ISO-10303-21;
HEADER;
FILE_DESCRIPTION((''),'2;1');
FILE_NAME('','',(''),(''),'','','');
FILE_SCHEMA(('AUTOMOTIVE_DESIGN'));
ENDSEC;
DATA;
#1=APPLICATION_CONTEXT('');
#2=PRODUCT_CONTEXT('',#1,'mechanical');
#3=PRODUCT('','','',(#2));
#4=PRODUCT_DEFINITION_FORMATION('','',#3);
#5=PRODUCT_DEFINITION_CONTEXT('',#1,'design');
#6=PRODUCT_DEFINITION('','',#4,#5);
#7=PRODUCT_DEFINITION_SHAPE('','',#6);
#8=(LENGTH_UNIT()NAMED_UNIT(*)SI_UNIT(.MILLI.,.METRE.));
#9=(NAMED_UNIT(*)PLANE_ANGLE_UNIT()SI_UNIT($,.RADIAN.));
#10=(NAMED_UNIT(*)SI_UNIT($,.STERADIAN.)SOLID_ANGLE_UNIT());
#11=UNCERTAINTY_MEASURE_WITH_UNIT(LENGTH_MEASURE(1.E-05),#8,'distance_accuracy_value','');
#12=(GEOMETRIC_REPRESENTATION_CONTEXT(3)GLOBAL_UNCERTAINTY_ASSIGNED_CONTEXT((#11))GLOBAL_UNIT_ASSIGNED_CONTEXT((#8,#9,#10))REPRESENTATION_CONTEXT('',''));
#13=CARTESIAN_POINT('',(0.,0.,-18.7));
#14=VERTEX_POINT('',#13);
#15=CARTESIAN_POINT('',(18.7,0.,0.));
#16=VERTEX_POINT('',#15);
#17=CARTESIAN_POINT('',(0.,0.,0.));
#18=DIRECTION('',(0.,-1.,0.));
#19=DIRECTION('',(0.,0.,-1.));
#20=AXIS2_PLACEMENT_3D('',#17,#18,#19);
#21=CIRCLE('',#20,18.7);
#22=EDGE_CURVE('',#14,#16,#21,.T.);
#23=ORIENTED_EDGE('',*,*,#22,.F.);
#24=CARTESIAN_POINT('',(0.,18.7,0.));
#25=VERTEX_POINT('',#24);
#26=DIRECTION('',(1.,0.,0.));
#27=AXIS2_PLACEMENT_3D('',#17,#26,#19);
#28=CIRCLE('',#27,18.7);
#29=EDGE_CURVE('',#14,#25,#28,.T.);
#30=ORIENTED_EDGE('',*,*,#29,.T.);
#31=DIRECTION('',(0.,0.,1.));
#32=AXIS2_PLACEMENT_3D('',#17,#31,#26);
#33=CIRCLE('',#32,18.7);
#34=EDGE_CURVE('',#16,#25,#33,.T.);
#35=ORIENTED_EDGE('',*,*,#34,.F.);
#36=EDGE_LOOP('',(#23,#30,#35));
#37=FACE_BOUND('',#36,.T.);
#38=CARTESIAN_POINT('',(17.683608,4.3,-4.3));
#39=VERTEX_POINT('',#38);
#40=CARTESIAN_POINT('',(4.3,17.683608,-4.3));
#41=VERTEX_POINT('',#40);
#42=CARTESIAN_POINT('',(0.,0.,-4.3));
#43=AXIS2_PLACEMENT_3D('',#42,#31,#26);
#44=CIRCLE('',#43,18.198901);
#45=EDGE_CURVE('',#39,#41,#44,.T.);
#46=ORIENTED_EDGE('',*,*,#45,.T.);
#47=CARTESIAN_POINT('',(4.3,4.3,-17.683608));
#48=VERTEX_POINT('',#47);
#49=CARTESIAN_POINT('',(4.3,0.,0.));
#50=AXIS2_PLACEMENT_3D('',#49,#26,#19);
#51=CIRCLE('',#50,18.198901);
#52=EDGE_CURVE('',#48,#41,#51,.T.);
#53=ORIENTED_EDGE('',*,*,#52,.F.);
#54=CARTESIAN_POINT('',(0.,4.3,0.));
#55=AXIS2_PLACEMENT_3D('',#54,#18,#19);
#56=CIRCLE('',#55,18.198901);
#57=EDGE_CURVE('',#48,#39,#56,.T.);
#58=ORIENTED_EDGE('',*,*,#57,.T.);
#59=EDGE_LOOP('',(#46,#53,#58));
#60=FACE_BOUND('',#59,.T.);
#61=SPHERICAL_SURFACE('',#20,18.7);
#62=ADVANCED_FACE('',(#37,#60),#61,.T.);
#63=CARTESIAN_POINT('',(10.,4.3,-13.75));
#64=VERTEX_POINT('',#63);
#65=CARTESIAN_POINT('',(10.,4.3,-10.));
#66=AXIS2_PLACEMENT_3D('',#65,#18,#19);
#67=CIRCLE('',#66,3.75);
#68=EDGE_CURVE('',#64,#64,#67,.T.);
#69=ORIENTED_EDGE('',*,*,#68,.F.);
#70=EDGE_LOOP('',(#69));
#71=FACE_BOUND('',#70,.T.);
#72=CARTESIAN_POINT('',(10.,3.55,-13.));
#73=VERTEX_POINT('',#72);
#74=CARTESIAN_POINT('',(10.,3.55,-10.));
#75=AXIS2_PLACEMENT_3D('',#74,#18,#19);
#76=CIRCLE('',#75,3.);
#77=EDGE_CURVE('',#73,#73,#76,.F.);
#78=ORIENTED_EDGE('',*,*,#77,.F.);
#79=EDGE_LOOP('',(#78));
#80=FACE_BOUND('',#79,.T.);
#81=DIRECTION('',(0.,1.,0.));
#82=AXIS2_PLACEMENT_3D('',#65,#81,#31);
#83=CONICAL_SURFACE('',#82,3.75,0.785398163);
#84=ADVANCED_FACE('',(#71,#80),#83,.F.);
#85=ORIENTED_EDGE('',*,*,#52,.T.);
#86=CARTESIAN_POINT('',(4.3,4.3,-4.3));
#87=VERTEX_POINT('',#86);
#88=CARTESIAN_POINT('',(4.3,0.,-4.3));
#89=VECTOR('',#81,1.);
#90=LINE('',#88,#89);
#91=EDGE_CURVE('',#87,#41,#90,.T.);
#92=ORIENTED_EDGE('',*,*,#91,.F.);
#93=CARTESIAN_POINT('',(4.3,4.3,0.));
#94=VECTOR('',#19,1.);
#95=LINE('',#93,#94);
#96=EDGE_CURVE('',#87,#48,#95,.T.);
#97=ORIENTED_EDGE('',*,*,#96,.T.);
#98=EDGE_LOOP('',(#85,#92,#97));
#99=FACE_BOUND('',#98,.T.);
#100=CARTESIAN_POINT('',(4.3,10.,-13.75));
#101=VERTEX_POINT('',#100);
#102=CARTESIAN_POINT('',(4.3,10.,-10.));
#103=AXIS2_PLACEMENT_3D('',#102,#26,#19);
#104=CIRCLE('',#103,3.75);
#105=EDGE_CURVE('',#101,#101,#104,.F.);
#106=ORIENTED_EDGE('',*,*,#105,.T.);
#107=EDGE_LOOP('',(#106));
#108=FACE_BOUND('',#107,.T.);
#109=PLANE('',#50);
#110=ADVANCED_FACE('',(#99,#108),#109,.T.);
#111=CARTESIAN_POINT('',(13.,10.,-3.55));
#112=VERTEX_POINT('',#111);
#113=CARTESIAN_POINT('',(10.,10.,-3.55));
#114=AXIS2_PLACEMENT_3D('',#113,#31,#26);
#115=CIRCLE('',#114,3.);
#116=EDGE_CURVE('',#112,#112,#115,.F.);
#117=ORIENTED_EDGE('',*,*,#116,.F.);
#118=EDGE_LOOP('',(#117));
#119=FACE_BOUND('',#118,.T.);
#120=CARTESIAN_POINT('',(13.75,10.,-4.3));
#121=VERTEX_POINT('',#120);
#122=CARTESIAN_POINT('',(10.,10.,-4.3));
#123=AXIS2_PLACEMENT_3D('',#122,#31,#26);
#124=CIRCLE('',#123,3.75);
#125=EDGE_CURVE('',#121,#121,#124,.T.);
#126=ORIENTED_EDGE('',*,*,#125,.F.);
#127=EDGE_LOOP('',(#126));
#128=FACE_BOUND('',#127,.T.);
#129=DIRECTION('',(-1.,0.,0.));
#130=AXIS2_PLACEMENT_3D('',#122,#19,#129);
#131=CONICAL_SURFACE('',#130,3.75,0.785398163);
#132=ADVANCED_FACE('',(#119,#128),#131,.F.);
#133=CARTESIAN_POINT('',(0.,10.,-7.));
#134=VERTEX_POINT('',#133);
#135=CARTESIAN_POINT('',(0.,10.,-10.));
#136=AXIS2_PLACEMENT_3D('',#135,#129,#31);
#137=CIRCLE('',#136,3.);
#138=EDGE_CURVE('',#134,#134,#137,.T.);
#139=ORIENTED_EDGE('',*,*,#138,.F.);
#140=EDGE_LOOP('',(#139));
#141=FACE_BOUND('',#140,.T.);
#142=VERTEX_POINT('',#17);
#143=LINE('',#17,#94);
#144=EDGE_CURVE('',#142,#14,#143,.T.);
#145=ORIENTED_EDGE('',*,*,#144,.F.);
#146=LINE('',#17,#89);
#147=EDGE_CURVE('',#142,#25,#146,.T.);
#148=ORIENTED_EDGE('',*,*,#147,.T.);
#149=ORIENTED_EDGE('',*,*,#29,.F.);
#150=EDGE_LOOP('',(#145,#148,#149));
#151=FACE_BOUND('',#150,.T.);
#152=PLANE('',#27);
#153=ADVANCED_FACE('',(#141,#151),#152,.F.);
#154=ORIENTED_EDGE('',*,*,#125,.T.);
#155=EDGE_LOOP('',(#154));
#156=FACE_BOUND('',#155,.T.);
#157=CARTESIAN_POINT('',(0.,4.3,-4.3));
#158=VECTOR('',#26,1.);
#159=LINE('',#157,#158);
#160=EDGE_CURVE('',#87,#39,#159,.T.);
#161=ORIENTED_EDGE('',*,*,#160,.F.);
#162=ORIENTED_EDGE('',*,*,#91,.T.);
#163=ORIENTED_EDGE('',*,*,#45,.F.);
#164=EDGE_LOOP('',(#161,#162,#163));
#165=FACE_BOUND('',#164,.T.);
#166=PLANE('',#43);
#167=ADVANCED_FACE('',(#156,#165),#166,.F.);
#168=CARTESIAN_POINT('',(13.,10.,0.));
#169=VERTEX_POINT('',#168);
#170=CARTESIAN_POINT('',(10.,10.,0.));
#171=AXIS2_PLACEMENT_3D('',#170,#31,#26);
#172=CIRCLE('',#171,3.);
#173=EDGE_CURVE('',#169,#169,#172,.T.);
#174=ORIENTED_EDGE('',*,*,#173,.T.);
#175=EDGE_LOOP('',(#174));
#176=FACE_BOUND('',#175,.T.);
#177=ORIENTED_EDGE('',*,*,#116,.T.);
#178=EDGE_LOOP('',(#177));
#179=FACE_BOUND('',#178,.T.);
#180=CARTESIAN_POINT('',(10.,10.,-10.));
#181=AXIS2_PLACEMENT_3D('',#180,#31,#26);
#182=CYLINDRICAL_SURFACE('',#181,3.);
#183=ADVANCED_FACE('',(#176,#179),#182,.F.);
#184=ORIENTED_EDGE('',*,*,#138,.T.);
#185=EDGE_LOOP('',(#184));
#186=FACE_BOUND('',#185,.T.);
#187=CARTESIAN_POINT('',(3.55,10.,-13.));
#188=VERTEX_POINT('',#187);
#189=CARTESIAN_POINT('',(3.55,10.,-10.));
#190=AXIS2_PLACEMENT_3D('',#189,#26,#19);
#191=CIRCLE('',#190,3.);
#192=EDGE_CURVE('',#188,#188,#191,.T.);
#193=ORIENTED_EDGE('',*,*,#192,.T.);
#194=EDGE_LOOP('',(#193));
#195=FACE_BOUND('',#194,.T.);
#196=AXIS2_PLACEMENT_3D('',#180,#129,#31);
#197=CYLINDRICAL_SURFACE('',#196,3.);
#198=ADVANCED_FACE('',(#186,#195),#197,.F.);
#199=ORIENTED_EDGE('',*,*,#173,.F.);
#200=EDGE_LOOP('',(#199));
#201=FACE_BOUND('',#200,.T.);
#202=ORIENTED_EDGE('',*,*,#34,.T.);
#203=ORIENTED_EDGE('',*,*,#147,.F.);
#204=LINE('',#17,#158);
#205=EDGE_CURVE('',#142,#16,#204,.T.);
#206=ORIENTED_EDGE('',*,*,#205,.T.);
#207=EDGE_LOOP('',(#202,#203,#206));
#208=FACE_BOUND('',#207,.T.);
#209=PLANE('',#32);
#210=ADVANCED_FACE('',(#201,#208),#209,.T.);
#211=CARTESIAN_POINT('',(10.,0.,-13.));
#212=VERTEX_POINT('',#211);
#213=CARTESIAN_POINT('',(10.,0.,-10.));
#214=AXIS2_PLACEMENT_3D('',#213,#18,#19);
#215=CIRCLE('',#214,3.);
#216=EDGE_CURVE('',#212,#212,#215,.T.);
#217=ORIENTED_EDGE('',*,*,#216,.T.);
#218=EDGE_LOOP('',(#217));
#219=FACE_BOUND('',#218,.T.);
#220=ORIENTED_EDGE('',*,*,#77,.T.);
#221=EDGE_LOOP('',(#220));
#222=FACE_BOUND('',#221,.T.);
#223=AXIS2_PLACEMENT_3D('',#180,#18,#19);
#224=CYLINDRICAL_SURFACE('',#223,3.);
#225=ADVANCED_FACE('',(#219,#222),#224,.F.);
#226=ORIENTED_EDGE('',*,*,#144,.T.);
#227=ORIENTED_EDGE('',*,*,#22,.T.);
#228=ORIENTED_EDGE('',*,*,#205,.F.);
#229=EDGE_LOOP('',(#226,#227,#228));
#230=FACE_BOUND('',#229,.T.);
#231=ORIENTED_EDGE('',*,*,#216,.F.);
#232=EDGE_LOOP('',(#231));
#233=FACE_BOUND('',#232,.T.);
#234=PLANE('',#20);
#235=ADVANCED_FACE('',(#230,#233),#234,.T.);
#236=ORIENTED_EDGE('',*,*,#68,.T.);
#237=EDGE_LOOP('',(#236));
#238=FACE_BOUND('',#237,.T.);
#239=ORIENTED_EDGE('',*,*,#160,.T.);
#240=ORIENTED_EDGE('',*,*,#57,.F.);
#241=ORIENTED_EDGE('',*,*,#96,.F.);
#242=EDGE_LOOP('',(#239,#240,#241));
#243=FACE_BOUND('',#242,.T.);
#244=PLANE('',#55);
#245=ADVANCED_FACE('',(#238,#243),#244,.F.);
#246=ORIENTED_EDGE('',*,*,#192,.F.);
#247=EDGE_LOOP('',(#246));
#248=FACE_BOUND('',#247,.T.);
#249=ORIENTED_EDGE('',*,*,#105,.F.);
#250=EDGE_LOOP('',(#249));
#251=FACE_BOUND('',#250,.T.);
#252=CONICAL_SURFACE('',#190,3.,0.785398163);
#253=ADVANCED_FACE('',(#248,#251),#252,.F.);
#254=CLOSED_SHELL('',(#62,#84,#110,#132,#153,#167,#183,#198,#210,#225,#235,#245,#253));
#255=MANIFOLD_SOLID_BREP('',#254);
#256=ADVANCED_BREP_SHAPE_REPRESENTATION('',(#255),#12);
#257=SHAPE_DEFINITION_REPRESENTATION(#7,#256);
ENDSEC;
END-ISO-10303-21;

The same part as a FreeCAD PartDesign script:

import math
import FreeCAD as App
import Part
import Sketcher
Q = App.Units.Quantity


def edges_at(feature, points):
    """Names of the edges that pass closest to the given points."""
    edges = feature.Shape.Edges
    near = lambda p: min(range(len(edges)), key=lambda i: edges[i].distToShape(Part.Vertex(*p))[0])
    return sorted({f"Edge{near(p) + 1}" for p in points})


def faces_at(feature, points):
    """Names of the faces that lie closest to the given points."""
    faces = feature.Shape.Faces
    near = lambda p: min(range(len(faces)), key=lambda i: faces[i].distToShape(Part.Vertex(*p))[0])
    return sorted({f"Face{near(p) + 1}" for p in points})

doc = App.newDocument("Part")
params = doc.addObject("Spreadsheet::Sheet", "Params")
for row, (alias, value) in enumerate([
    ("sketch1_radius", "18.7 mm"),
    ("revolution_angle", "90 deg"),
    ("thickness_wall", "4.3 mm"),
    ("sketch2_diameter", "6 mm"),
    ("pocket1_length", "10 mm"),
    ("sketch3_diameter", "6 mm"),
    ("pocket2_length", "10 mm"),
    ("sketch4_diameter", "6 mm"),
    ("pocket3_length", "10 mm"),
    ("chamfer_size", "0.75 mm"),
], start=1):
    params.set(f"A{row}", alias)
    params.set(f"B{row}", "=" + value)
    params.setAlias(f"B{row}", alias)

body = doc.addObject("PartDesign::Body", "Body")

# Sketch on XY plane
sketch1 = doc.addObject("Sketcher::SketchObject", "Sketch")
body.addObject(sketch1)
sketch1.AttachmentSupport = (doc.XY_Plane, [""])
sketch1.MapMode = "FlatFace"
sketch1.addGeometry([
    Part.LineSegment(App.Vector(0, 0, 0), App.Vector(19, 0, 0)),
    Part.ArcOfCircle(Part.Circle(App.Vector(0, 0, 0), App.Vector(0, 0, 1), 19), math.radians(0), math.radians(90)),
    Part.LineSegment(App.Vector(0, 19, 0), App.Vector(0, 0, 0)),
], False)
sketch1.addConstraint([
    Sketcher.Constraint("Coincident", 0, 2, 1, 1),
    Sketcher.Constraint("Coincident", 1, 2, 2, 1),
    Sketcher.Constraint("Coincident", 2, 2, 0, 1),
    Sketcher.Constraint("Horizontal", 0),
    Sketcher.Constraint("Vertical", 2),
    Sketcher.Constraint("Coincident", 1, 3, -1, 1),
    Sketcher.Constraint("Coincident", 2, 2, -1, 1),
    Sketcher.Constraint("Radius", 1, Q("18.7 mm")),
])
sketch1.setExpression("Constraints[7]", "Params.sketch1_radius")
revolution = doc.addObject("PartDesign::Revolution", "Revolution")
body.addObject(revolution)
revolution.Profile = sketch1
revolution.ReferenceAxis = (sketch1, ["V_Axis"])
revolution.setExpression("Angle", "Params.revolution_angle")
doc.recompute()

thickness = doc.addObject("PartDesign::Thickness", "Thickness")
body.addObject(thickness)
thickness.Base = (revolution, faces_at(revolution, [(9.35, 13.223, -9.35)]))
thickness.setExpression("Value", "Params.thickness_wall")
thickness.Reversed = True
thickness.Join = "Intersection"

# Sketch on XY plane
sketch2 = doc.addObject("Sketcher::SketchObject", "Sketch001")
body.addObject(sketch2)
sketch2.AttachmentSupport = (doc.XY_Plane, [""])
sketch2.MapMode = "FlatFace"
sketch2.addGeometry(Part.Circle(App.Vector(10, 10, 0), App.Vector(0, 0, 1), 3), False)
sketch2.addConstraint([
    Sketcher.Constraint("Diameter", 0, Q("6 mm")),
    Sketcher.Constraint("DistanceX", -1, 1, 0, 3, Q("10 mm")),
    Sketcher.Constraint("DistanceY", -1, 1, 0, 3, Q("10 mm")),
])
sketch2.setExpression("Constraints[0]", "Params.sketch2_diameter")
pocket1 = doc.addObject("PartDesign::Pocket", "Pocket")
body.addObject(pocket1)
pocket1.Profile = sketch2
pocket1.setExpression("Length", "Params.pocket1_length")

# Sketch on XZ plane
sketch3 = doc.addObject("Sketcher::SketchObject", "Sketch002")
body.addObject(sketch3)
sketch3.AttachmentSupport = (doc.XZ_Plane, [""])
sketch3.MapMode = "FlatFace"
sketch3.addGeometry(Part.Circle(App.Vector(10, -10, 0), App.Vector(0, 0, 1), 3), False)
sketch3.addConstraint([
    Sketcher.Constraint("Diameter", 0, Q("6 mm")),
    Sketcher.Constraint("DistanceX", -1, 1, 0, 3, Q("10 mm")),
    Sketcher.Constraint("DistanceY", 0, 3, -1, 1, Q("10 mm")),
])
sketch3.setExpression("Constraints[0]", "Params.sketch3_diameter")
pocket2 = doc.addObject("PartDesign::Pocket", "Pocket001")
body.addObject(pocket2)
pocket2.Profile = sketch3
pocket2.setExpression("Length", "Params.pocket2_length")

# Sketch on YZ plane
sketch4 = doc.addObject("Sketcher::SketchObject", "Sketch003")
body.addObject(sketch4)
sketch4.AttachmentSupport = (doc.YZ_Plane, [""])
sketch4.MapMode = "FlatFace"
sketch4.addGeometry(Part.Circle(App.Vector(10, -10, 0), App.Vector(0, 0, 1), 3), False)
sketch4.addConstraint([
    Sketcher.Constraint("Diameter", 0, Q("6 mm")),
    Sketcher.Constraint("DistanceX", -1, 1, 0, 3, Q("10 mm")),
    Sketcher.Constraint("DistanceY", 0, 3, -1, 1, Q("10 mm")),
])
sketch4.setExpression("Constraints[0]", "Params.sketch4_diameter")
pocket3 = doc.addObject("PartDesign::Pocket", "Pocket002")
body.addObject(pocket3)
pocket3.Profile = sketch4
pocket3.setExpression("Length", "Params.pocket3_length")
pocket3.Reversed = True
doc.recompute()

chamfer = doc.addObject("PartDesign::Chamfer", "Chamfer")
body.addObject(chamfer)
chamfer.Base = (pocket3, edges_at(pocket3, [(7, 10, -4.3), (10, 4.3, -7), (4.3, 10, -13)]))
chamfer.setExpression("Size", "Params.chamfer_size")

doc.recompute()
